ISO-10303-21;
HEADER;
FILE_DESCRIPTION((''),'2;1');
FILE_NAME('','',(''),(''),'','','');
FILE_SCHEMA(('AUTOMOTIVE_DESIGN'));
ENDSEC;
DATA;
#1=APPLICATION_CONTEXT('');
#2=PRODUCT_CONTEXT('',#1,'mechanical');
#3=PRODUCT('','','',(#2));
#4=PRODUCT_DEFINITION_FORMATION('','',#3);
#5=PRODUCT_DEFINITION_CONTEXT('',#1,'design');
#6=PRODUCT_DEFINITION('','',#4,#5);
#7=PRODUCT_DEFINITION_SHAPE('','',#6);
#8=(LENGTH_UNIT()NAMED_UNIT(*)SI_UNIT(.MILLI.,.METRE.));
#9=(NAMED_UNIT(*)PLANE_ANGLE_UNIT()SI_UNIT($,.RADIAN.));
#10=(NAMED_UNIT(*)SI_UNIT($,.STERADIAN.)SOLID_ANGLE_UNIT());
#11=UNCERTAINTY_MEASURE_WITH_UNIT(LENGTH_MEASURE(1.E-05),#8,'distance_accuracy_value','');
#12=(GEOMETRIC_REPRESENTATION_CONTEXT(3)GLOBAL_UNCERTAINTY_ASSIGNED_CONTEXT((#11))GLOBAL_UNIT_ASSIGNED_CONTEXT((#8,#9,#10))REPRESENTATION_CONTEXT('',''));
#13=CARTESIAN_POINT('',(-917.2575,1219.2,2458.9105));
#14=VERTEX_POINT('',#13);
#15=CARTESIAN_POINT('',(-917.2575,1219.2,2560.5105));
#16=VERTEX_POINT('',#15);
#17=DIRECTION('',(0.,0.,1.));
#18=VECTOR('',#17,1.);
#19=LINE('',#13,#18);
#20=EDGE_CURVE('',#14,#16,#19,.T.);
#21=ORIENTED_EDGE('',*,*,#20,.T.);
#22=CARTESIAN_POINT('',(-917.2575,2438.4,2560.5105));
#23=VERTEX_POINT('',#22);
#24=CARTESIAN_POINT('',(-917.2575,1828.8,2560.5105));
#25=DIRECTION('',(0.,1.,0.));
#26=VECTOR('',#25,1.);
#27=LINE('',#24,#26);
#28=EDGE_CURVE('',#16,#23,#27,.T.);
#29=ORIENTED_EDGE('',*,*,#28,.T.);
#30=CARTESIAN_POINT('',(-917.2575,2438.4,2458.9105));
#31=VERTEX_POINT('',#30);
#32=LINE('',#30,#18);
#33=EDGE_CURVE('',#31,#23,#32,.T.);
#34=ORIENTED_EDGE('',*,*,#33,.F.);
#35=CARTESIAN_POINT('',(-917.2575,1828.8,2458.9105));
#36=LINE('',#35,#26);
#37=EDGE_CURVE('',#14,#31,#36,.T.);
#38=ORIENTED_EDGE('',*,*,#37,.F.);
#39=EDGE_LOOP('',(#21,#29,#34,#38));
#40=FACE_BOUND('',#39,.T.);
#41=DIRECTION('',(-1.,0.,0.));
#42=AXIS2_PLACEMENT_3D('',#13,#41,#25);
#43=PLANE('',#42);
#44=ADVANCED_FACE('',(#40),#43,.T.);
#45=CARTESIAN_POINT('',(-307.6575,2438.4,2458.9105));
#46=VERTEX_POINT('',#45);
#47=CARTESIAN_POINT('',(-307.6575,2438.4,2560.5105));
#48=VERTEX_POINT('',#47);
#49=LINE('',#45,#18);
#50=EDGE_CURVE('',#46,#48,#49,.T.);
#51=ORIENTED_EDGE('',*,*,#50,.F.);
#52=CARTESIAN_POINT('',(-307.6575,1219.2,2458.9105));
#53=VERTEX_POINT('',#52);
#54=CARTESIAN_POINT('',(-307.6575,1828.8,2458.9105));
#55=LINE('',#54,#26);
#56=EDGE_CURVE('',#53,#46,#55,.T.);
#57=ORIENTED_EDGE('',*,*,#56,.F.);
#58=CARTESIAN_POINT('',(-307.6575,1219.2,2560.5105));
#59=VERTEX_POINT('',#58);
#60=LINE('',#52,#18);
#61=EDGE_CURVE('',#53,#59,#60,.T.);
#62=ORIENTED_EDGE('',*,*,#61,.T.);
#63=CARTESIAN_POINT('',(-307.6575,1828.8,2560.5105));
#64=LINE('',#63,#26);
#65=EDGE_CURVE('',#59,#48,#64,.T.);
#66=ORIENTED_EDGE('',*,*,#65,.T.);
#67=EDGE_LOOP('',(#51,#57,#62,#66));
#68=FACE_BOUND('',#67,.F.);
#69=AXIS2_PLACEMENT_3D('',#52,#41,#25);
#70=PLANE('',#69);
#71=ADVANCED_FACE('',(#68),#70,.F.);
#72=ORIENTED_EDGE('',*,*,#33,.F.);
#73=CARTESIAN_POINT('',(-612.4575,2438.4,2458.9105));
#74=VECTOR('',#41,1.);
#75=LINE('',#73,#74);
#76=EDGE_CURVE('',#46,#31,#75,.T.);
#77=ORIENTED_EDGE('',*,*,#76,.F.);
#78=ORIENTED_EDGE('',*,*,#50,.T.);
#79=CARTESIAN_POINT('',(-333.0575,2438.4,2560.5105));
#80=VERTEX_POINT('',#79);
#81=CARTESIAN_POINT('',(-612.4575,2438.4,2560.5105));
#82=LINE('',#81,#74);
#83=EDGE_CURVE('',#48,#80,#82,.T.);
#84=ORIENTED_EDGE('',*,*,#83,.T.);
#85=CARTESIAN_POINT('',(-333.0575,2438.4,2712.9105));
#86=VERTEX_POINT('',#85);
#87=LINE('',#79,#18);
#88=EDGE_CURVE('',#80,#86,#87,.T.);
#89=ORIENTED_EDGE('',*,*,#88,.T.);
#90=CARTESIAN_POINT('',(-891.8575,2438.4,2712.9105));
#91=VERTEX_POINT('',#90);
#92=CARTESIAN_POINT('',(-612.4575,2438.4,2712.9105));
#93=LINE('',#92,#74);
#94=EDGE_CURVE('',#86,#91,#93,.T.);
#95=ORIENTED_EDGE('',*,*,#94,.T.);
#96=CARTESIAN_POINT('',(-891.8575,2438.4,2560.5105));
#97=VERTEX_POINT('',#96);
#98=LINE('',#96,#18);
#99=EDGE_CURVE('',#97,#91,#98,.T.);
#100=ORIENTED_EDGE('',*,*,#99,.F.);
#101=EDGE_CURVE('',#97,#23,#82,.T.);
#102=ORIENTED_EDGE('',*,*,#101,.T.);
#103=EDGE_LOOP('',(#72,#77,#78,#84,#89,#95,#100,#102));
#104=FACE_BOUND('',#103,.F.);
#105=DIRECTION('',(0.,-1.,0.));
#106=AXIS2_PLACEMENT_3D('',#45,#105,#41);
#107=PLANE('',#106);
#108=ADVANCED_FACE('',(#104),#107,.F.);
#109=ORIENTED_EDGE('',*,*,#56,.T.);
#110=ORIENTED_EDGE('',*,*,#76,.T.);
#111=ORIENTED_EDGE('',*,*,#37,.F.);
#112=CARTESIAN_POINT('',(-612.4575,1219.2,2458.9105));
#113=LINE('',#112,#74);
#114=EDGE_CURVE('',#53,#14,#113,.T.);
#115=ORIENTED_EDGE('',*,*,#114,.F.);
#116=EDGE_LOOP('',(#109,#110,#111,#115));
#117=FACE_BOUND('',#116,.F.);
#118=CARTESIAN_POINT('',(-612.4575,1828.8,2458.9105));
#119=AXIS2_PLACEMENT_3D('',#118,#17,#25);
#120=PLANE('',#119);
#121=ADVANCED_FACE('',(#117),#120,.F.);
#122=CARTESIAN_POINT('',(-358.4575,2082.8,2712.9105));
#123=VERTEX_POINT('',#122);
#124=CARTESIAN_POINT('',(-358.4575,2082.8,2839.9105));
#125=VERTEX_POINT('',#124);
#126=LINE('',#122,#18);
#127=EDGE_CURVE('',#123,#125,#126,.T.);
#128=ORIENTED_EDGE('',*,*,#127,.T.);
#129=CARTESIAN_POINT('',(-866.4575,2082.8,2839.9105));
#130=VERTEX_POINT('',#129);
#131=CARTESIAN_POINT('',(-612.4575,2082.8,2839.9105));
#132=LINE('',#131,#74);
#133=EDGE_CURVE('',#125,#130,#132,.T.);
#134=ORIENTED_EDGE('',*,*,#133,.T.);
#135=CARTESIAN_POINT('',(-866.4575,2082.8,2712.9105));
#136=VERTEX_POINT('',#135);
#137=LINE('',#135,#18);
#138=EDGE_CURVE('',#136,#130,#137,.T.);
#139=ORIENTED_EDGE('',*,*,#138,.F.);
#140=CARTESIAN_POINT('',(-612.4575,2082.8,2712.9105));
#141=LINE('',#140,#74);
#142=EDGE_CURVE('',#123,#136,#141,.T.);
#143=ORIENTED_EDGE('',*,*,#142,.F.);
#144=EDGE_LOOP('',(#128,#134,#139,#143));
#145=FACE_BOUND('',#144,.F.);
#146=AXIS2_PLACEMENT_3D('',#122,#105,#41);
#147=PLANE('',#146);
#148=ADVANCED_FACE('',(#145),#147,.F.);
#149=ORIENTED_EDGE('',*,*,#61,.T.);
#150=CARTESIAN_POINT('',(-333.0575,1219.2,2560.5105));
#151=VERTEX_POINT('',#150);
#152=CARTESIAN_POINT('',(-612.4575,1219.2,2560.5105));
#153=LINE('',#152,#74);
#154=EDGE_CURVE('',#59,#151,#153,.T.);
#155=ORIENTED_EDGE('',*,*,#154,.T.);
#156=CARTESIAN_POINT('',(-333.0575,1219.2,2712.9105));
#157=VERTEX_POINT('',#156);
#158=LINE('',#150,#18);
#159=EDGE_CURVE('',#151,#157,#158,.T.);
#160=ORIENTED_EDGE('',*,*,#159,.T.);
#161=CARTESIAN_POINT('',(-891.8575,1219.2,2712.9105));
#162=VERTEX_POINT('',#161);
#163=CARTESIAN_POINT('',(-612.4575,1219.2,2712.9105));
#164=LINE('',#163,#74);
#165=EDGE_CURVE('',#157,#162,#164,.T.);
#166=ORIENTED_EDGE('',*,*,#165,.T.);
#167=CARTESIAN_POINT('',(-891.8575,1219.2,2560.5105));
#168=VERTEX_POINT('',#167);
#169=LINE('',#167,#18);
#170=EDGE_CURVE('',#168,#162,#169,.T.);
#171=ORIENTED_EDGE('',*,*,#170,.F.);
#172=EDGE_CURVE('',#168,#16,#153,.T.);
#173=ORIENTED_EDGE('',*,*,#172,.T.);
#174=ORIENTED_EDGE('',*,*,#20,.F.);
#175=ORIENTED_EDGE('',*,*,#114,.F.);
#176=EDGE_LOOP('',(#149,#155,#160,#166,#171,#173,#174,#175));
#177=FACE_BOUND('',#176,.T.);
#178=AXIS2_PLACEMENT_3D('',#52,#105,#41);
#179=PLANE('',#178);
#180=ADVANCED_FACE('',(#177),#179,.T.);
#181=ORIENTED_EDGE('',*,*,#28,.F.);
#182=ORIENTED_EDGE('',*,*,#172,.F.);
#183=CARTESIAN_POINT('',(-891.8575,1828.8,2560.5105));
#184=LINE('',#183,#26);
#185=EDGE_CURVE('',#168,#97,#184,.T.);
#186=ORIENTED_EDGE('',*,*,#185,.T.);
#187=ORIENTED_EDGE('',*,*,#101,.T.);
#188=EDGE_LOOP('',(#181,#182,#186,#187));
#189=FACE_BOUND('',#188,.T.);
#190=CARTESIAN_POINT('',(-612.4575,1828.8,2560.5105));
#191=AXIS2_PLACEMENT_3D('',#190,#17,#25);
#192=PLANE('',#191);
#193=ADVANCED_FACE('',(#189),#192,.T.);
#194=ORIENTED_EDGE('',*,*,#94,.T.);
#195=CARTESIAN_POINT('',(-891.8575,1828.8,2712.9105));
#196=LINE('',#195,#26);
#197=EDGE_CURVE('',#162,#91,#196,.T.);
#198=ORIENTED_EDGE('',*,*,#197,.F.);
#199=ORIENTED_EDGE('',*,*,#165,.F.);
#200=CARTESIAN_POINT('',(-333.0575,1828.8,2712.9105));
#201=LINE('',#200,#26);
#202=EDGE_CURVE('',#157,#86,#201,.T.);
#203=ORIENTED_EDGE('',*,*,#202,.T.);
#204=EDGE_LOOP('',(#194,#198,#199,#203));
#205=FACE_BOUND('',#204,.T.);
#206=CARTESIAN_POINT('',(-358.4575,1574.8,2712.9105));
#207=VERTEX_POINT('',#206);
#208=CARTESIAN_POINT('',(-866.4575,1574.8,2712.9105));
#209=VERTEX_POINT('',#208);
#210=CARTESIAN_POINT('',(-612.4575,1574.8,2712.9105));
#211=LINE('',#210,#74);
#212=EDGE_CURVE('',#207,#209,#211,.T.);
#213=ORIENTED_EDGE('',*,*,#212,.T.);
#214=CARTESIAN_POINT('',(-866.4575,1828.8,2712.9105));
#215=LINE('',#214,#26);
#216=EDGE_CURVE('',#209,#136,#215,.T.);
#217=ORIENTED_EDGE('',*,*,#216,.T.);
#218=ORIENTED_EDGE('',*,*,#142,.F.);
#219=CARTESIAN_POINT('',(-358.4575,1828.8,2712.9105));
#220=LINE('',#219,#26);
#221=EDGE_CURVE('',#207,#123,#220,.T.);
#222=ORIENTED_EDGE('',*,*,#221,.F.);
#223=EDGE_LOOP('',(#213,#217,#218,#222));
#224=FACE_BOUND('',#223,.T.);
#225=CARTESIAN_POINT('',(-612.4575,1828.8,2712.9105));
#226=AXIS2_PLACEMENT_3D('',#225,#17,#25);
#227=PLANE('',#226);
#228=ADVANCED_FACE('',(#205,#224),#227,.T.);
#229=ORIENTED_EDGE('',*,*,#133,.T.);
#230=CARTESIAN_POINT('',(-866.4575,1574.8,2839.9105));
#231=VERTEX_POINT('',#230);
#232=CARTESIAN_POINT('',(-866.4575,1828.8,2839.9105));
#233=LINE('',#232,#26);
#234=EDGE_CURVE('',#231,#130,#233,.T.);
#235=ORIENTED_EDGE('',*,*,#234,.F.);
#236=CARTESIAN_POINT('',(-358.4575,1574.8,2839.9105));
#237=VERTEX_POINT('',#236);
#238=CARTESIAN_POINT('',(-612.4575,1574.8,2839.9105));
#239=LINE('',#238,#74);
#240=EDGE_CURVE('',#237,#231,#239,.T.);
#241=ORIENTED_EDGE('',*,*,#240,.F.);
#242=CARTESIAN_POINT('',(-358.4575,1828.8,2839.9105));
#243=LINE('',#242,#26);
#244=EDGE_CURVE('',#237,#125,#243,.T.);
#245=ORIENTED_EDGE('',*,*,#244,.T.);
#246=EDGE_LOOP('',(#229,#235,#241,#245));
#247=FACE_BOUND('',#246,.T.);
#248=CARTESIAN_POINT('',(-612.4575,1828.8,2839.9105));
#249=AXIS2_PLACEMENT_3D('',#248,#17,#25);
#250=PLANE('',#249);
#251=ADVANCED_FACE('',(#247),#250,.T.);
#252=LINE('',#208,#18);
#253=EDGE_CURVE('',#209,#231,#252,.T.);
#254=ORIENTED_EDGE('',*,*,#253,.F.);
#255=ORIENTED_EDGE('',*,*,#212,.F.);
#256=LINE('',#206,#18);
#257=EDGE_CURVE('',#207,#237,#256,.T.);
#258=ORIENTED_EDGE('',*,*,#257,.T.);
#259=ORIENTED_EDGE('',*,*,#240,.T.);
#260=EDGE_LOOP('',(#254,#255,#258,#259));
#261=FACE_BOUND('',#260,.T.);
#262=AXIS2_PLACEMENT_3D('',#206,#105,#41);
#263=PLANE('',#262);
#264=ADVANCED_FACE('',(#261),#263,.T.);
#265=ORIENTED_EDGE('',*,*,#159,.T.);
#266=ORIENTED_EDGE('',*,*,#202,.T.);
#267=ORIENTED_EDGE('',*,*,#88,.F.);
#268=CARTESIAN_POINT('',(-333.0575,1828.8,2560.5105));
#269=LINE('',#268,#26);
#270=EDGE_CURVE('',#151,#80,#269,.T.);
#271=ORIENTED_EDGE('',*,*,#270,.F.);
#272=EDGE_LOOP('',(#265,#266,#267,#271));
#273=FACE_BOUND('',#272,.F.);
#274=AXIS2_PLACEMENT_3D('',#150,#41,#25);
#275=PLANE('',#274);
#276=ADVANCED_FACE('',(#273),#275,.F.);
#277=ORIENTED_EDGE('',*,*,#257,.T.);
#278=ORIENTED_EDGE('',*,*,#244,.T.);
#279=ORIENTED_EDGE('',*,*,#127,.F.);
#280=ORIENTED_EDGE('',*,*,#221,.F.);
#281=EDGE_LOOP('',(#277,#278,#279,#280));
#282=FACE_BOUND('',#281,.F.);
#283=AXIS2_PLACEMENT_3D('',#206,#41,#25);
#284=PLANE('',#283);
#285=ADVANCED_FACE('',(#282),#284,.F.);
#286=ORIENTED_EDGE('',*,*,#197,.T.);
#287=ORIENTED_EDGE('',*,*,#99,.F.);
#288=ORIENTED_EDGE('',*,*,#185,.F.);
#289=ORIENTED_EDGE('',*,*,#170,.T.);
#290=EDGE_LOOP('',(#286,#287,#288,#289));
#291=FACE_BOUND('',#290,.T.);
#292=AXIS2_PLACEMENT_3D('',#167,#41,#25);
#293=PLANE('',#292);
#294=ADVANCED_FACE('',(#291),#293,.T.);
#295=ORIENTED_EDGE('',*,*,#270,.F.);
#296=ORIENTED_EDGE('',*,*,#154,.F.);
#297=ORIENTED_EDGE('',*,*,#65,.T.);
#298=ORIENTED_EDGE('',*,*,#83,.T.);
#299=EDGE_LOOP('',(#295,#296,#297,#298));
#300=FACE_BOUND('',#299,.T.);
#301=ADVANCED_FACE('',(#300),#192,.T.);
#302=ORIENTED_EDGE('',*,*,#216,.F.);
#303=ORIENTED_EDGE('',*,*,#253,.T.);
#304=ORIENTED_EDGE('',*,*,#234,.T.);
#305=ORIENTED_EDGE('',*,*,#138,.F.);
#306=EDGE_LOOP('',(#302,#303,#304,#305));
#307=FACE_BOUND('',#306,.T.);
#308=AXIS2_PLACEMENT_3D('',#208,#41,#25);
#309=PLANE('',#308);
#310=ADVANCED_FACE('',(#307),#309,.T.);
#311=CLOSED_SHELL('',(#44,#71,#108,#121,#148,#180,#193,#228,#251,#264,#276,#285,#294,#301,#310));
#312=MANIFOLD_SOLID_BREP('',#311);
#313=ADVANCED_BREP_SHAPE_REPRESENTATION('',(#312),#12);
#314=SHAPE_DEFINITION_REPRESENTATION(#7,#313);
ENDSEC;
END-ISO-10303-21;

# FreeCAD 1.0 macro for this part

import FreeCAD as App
import Part
import Sketcher

V = App.Vector
Q = App.Units.Quantity


def add_polygon(sketch, points):
    """Adds a closed chain of lines whose ends are joined by coincident constraints."""
    first, n = sketch.GeometryCount, len(points)
    for a, b in zip(points, points[1:] + points[:1]):
        sketch.addGeometry(Part.LineSegment(App.Vector(*a, 0), App.Vector(*b, 0)), False)
    for i in range(n):
        sketch.addConstraint(Sketcher.Constraint("Coincident", first + i, 2, first + (i + 1) % n, 1))

doc = App.newDocument("Part")
body = doc.addObject("PartDesign::Body", "Body")

# Sketch on XY plane
sketch1 = body.newObject("Sketcher::SketchObject", "Sketch")
sketch1.AttachmentSupport = (doc.getObject("XY_Plane"), [""])
sketch1.MapMode = "FlatFace"
add_polygon(sketch1, [(0, 610), (0, 0), (1219, 0), (1219, 610)])  # lines 0-3
sketch1.addConstraint([
    Sketcher.Constraint("Vertical", 0),
    Sketcher.Constraint("Horizontal", 1),
    Sketcher.Constraint("Vertical", 2),
    Sketcher.Constraint("Horizontal", 3),
    Sketcher.Constraint("Coincident", 0, 2, -1, 1),
    Sketcher.Constraint("DistanceX", 1, 1, 1, 2, Q("48 in")),
    Sketcher.Constraint("DistanceY", 0, 2, 0, 1, Q("24 in")),
])
pad1 = body.newObject("PartDesign::Pad", "Pad")
pad1.Profile = sketch1
pad1.Length = Q("4 in")

# Sketch on XY plane
sketch2 = body.newObject("Sketcher::SketchObject", "Sketch001")
sketch2.AttachmentSupport = (doc.getObject("XY_Plane"), [""])
sketch2.MapMode = "FlatFace"
sketch2.AttachmentOffset = App.Placement(V(0, 0, 4 * 25.4), App.Rotation())
add_polygon(sketch2, [(0, 584), (0, 25), (1219, 25), (1219, 584)])  # lines 0-3
sketch2.addConstraint([
    Sketcher.Constraint("Vertical", 0),
    Sketcher.Constraint("Horizontal", 1),
    Sketcher.Constraint("Vertical", 2),
    Sketcher.Constraint("Horizontal", 3),
    Sketcher.Constraint("PointOnObject", 0, 2, -2),
    Sketcher.Constraint("DistanceX", 1, 1, 1, 2, Q("48 in")),
    Sketcher.Constraint("DistanceY", 0, 2, 0, 1, Q("22 in")),
    Sketcher.Constraint("DistanceY", -1, 1, 0, 2, Q("1 in")),
])
pad2 = body.newObject("PartDesign::Pad", "Pad001")
pad2.Profile = sketch2
pad2.Length = Q("6 in")

# Sketch on XY plane
sketch3 = body.newObject("Sketcher::SketchObject", "Sketch002")
sketch3.AttachmentSupport = (doc.getObject("XY_Plane"), [""])
sketch3.MapMode = "FlatFace"
sketch3.AttachmentOffset = App.Placement(V(0, 0, 10 * 25.4), App.Rotation())
add_polygon(sketch3, [(356, 559), (356, 51), (864, 51), (864, 559)])  # lines 0-3
sketch3.addConstraint([
    Sketcher.Constraint("Vertical", 0),
    Sketcher.Constraint("Horizontal", 1),
    Sketcher.Constraint("Vertical", 2),
    Sketcher.Constraint("Horizontal", 3),
    Sketcher.Constraint("Equal", 3, 0),
    Sketcher.Constraint("DistanceX", 1, 1, 1, 2, Q("20 in")),
    Sketcher.Constraint("DistanceX", -1, 1, 0, 2, Q("14 in")),
    Sketcher.Constraint("DistanceY", -1, 1, 0, 2, Q("2 in")),
])
pad3 = body.newObject("PartDesign::Pad", "Pad002")
pad3.Profile = sketch3
pad3.Length = Q("5 in")
body2 = doc.addObject("PartDesign::Body", "Body001")
doc.recompute()

body.Placement = App.Placement(V(-307.6575, 1219.2, 2458.9105), App.Rotation(V(0, 0, 1), 90))
boolean = body2.newObject("PartDesign::Boolean", "Boolean")
boolean.Type = "Fuse"
boolean.addObjects([body])

doc.recompute()
